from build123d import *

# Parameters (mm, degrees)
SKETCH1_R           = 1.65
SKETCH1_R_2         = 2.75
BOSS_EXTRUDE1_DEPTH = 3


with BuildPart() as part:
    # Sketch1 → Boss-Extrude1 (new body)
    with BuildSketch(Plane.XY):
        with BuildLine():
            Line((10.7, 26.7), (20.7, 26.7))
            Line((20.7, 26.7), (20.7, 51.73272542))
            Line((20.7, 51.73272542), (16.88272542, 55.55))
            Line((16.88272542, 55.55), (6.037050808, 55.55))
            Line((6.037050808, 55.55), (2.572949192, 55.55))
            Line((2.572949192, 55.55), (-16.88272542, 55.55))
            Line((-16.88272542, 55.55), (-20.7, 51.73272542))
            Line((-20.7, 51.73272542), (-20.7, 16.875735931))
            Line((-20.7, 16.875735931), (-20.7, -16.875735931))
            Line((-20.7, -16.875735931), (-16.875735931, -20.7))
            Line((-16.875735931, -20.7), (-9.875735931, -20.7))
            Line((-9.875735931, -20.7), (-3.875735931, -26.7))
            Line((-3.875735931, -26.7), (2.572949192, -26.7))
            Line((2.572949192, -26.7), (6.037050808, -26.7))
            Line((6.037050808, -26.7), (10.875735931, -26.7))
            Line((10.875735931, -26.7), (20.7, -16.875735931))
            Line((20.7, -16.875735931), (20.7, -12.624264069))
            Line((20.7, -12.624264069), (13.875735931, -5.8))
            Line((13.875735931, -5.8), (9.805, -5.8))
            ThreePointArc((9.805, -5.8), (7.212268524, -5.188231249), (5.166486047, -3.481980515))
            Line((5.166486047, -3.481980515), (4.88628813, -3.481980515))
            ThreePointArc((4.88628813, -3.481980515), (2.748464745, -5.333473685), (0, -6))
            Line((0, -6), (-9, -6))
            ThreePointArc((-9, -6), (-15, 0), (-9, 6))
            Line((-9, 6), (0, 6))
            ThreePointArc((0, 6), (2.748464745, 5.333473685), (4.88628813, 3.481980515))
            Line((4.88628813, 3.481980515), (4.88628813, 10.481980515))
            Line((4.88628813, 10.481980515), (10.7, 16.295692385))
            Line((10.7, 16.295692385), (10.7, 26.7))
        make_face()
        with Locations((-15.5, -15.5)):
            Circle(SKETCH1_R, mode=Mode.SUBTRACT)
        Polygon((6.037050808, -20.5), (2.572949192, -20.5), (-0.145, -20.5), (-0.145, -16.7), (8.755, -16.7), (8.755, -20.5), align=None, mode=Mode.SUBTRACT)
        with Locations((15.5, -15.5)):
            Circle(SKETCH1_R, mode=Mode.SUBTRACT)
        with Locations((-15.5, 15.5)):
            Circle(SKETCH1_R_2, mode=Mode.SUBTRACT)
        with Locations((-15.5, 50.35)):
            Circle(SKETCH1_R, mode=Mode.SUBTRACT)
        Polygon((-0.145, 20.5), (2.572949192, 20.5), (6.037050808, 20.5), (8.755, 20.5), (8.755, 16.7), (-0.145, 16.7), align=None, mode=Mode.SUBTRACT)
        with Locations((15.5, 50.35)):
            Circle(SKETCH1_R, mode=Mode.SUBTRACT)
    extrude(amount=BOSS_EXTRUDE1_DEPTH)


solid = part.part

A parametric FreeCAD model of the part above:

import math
import FreeCAD as App
import Part
import Sketcher

V = App.Vector


def add_polygon(sketch, points):
    """Adds a closed chain of lines whose ends are joined by coincident constraints."""
    first, n = sketch.GeometryCount, len(points)
    for a, b in zip(points, points[1:] + points[:1]):
        sketch.addGeometry(Part.LineSegment(App.Vector(*a, 0), App.Vector(*b, 0)), False)
    for i in range(n):
        sketch.addConstraint(Sketcher.Constraint("Coincident", first + i, 2, first + (i + 1) % n, 1))

doc = App.newDocument("Part")
body = doc.addObject("PartDesign::Body", "Body")

# Sketch on XY plane
sketch1 = doc.addObject("Sketcher::SketchObject", "Sketch")
body.addObject(sketch1)
sketch1.AttachmentSupport = (doc.XY_Plane, [""])
sketch1.MapMode = "FlatFace"
sketch1.addGeometry(Part.LineSegment(V(10.7, 26.7, 0), V(20.7, 26.7, 0)), False)  # 0
sketch1.addGeometry(Part.LineSegment(V(20.7, 26.7, 0), V(20.7, 51.73, 0)), False)  # 1
sketch1.addGeometry(Part.LineSegment(V(20.7, 51.73, 0), V(16.88, 55.55, 0)), False)  # 2
sketch1.addGeometry(Part.LineSegment(V(16.88, 55.55, 0), V(-16.88, 55.55, 0)), False)  # 3
sketch1.addGeometry(Part.LineSegment(V(-16.88, 55.55, 0), V(-20.7, 51.73, 0)), False)  # 4
sketch1.addGeometry(Part.LineSegment(V(-20.7, 51.73, 0), V(-20.7, -16.88, 0)), False)  # 5
sketch1.addGeometry(Part.LineSegment(V(-20.7, -16.88, 0), V(-16.88, -20.7, 0)), False)  # 6
sketch1.addGeometry(Part.LineSegment(V(-16.88, -20.7, 0), V(-9.88, -20.7, 0)), False)  # 7
sketch1.addGeometry(Part.LineSegment(V(-9.88, -20.7, 0), V(-3.88, -26.7, 0)), False)  # 8
sketch1.addGeometry(Part.LineSegment(V(-3.88, -26.7, 0), V(10.88, -26.7, 0)), False)  # 9
sketch1.addGeometry(Part.LineSegment(V(10.88, -26.7, 0), V(20.7, -16.88, 0)), False)  # 10
sketch1.addGeometry(Part.LineSegment(V(20.7, -16.88, 0), V(20.7, -12.62, 0)), False)  # 11
sketch1.addGeometry(Part.LineSegment(V(20.7, -12.62, 0), V(13.88, -5.8, 0)), False)  # 12
sketch1.addGeometry(Part.LineSegment(V(13.88, -5.8, 0), V(9.8, -5.8, 0)), False)  # 13
sketch1.addGeometry(Part.ArcOfCircle(Part.Circle(V(9.8, 0, 0), V(0, 0, 1), 5.8), math.radians(-143), math.radians(-90)), False)  # 14
sketch1.addGeometry(Part.LineSegment(V(5.17, -3.48, 0), V(4.89, -3.48, 0)), False)  # 15
sketch1.addGeometry(Part.ArcOfCircle(Part.Circle(V(0, 0, 0), V(0, 0, 1), 6), math.radians(-90), math.radians(-35)), False)  # 16
sketch1.addGeometry(Part.LineSegment(V(0, -6, 0), V(-9, -6, 0)), False)  # 17
sketch1.addGeometry(Part.ArcOfCircle(Part.Circle(V(-9, 0, 0), V(0, 0, 1), 6), math.radians(90), math.radians(270)), False)  # 18
sketch1.addGeometry(Part.LineSegment(V(-9, 6, 0), V(0, 6, 0)), False)  # 19
sketch1.addGeometry(Part.ArcOfCircle(Part.Circle(V(0, 0, 0), V(0, 0, 1), 6), math.radians(35), math.radians(90)), False)  # 20
sketch1.addGeometry(Part.LineSegment(V(4.89, 3.48, 0), V(4.89, 10.48, 0)), False)  # 21
sketch1.addGeometry(Part.LineSegment(V(4.89, 10.48, 0), V(10.7, 16.3, 0)), False)  # 22
sketch1.addGeometry(Part.LineSegment(V(10.7, 16.3, 0), V(10.7, 26.7, 0)), False)  # 23
sketch1.addGeometry(Part.Circle(V(-15.5, -15.5, 0), V(0, 0, 1), 1.65), False)  # 24
sketch1.addGeometry(Part.Circle(V(-15.5, 15.5, 0), V(0, 0, 1), 2.75), False)  # 25
add_polygon(sketch1, [(8.76, -20.5), (-0.14, -20.5), (-0.14, -16.7), (8.76, -16.7)])  # lines 26-29
sketch1.addGeometry(Part.Circle(V(15.5, -15.5, 0), V(0, 0, 1), 1.65), False)  # 30
sketch1.addGeometry(Part.Circle(V(-15.5, 50.35, 0), V(0, 0, 1), 1.65), False)  # 31
add_polygon(sketch1, [(-0.14, 16.7), (-0.14, 20.5), (8.76, 20.5), (8.76, 16.7)])  # lines 32-35
sketch1.addGeometry(Part.Circle(V(15.5, 50.35, 0), V(0, 0, 1), 1.65), False)  # 36
sketch1.addConstraint([
    Sketcher.Constraint("Coincident", 0, 2, 1, 1),
    Sketcher.Constraint("Coincident", 1, 2, 2, 1),
    Sketcher.Constraint("Coincident", 2, 2, 3, 1),
    Sketcher.Constraint("Coincident", 3, 2, 4, 1),
    Sketcher.Constraint("Coincident", 4, 2, 5, 1),
    Sketcher.Constraint("Coincident", 5, 2, 6, 1),
    Sketcher.Constraint("Coincident", 6, 2, 7, 1),
    Sketcher.Constraint("Coincident", 7, 2, 8, 1),
    Sketcher.Constraint("Coincident", 8, 2, 9, 1),
    Sketcher.Constraint("Coincident", 9, 2, 10, 1),
    Sketcher.Constraint("Coincident", 10, 2, 11, 1),
    Sketcher.Constraint("Coincident", 11, 2, 12, 1),
    Sketcher.Constraint("Coincident", 12, 2, 13, 1),
    Sketcher.Constraint("Tangent", 13, 2, 14, 2),
    Sketcher.Constraint("Coincident", 14, 1, 15, 1),
    Sketcher.Constraint("Coincident", 15, 2, 16, 2),
    Sketcher.Constraint("Tangent", 16, 1, 17, 1),
    Sketcher.Constraint("Tangent", 17, 2, 18, 2),
    Sketcher.Constraint("Tangent", 18, 1, 19, 1),
    Sketcher.Constraint("Tangent", 19, 2, 20, 2),
    Sketcher.Constraint("Coincident", 20, 1, 21, 1),
    Sketcher.Constraint("Coincident", 21, 2, 22, 1),
    Sketcher.Constraint("Coincident", 22, 2, 23, 1),
    Sketcher.Constraint("Coincident", 23, 2, 0, 1),
    Sketcher.Constraint("Horizontal", 0),
    Sketcher.Constraint("Vertical", 1),
    Sketcher.Constraint("Horizontal", 3),
    Sketcher.Constraint("Vertical", 5),
    Sketcher.Constraint("Horizontal", 7),
    Sketcher.Constraint("Horizontal", 9),
    Sketcher.Constraint("Vertical", 11),
    Sketcher.Constraint("Horizontal", 13),
    Sketcher.Constraint("Horizontal", 15),
    Sketcher.Constraint("Horizontal", 17),
    Sketcher.Constraint("Horizontal", 19),
    Sketcher.Constraint("Vertical", 21),
    Sketcher.Constraint("Vertical", 23),
    Sketcher.Constraint("Horizontal", 26),
    Sketcher.Constraint("Vertical", 27),
    Sketcher.Constraint("Horizontal", 28),
    Sketcher.Constraint("Vertical", 29),
    Sketcher.Constraint("Vertical", 32),
    Sketcher.Constraint("Horizontal", 33),
    Sketcher.Constraint("Vertical", 34),
    Sketcher.Constraint("Horizontal", 35),
    Sketcher.Constraint("Coincident", 16, 3, -1, 1),
    Sketcher.Constraint("Coincident", 20, 3, -1, 1),
    Sketcher.Constraint("Equal", 16, 18),
    Sketcher.Constraint("Equal", 24, 30),
    Sketcher.Constraint("Equal", 30, 31),
    Sketcher.Constraint("Equal", 31, 36),
    Sketcher.Constraint("Symmetric", 25, 3, 30, 3, -1, 1),
    Sketcher.Constraint("Symmetric", 24, 3, 30, 3, -2),
    Sketcher.Constraint("Symmetric", 31, 3, 36, 3, -2),
    Sketcher.Constraint("Symmetric", 1, 2, 4, 2, -2),
    Sketcher.Constraint("Symmetric", 5, 2, 10, 2, -2),
    Sketcher.Constraint("Symmetric", 26, 2, 32, 2, -1),
    Sketcher.Constraint("Symmetric", 28, 2, 34, 2, -1),
    Sketcher.Constraint("PointOnObject", 14, 3, -1),
    Sketcher.Constraint("Perpendicular", 2, 4),
    Sketcher.Constraint("Perpendicular", 4, 6),
    Sketcher.Constraint("Parallel", 6, 8),
    Sketcher.Constraint("Perpendicular", 8, 10),
    Sketcher.Constraint("Perpendicular", 10, 12),
    Sketcher.Constraint("Perpendicular", 12, 22),
    Sketcher.Constraint("Vertical", 25, 3, 31, 3),
    Sketcher.Constraint("Vertical", 15, 2, 20, 1),
    Sketcher.Constraint("Equal", 7, 21),
    Sketcher.Constraint("Equal", 2, 4),
    Sketcher.Constraint("Radius", 16, 6.0),
    Sketcher.Constraint("Diameter", 24, 3.3),
    Sketcher.Constraint("Diameter", 25, 5.5),
    Sketcher.Constraint("Radius", 14, 5.8),
    Sketcher.Constraint("DistanceX", 0, 1, 0, 2, 10.0),
    Sketcher.Constraint("DistanceX", 7, 1, 7, 2, 7.0),
    Sketcher.Constraint("DistanceX", 17, 2, 17, 1, 9.0),
    Sketcher.Constraint("DistanceX", 26, 2, 26, 1, 8.9),
    Sketcher.Constraint("DistanceY", 27, 1, 27, 2, 3.8),
    Sketcher.Constraint("DistanceY", 24, 3, 25, 3, 31.0),
    Sketcher.Constraint("DistanceX", 24, 3, 30, 3, 31.0),
    Sketcher.Constraint("DistanceX", 7, 2, 8, 2, 6.0),
    Sketcher.Constraint("DistanceY", 26, 2, 24, 3, 5.0),
    Sketcher.Constraint("DistanceY", 7, 2, 27, 2, 4.0),
    Sketcher.Constraint("DistanceY", 34, 2, 23, 2, 10.0),
    Sketcher.Constraint("DistanceX", -1, 1, 0, 2, 20.7),
    Sketcher.Constraint("DistanceY", 36, 3, 2, 2, 5.2),
    Sketcher.Constraint("DistanceY", -1, 1, 31, 3, 50.35),
    Sketcher.Constraint("DistanceX", 28, 2, 13, 2, 1.05),
    Sketcher.Constraint("DistanceX", -1, 1, 14, 3, 9.805),
    Sketcher.Constraint("DistanceX", 3, 2, 3, 1, 33.765451),
    Sketcher.Constraint("DistanceX", 9, 1, 9, 2, 14.751472),
    Sketcher.Constraint("DistanceY", 11, 1, 11, 2, 4.251472),
    Sketcher.Constraint("Distance", 22, 8.22183),
])
pad1 = doc.addObject("PartDesign::Pad", "Pad")
body.addObject(pad1)
pad1.Profile = sketch1
pad1.Length = 3

doc.recompute()
